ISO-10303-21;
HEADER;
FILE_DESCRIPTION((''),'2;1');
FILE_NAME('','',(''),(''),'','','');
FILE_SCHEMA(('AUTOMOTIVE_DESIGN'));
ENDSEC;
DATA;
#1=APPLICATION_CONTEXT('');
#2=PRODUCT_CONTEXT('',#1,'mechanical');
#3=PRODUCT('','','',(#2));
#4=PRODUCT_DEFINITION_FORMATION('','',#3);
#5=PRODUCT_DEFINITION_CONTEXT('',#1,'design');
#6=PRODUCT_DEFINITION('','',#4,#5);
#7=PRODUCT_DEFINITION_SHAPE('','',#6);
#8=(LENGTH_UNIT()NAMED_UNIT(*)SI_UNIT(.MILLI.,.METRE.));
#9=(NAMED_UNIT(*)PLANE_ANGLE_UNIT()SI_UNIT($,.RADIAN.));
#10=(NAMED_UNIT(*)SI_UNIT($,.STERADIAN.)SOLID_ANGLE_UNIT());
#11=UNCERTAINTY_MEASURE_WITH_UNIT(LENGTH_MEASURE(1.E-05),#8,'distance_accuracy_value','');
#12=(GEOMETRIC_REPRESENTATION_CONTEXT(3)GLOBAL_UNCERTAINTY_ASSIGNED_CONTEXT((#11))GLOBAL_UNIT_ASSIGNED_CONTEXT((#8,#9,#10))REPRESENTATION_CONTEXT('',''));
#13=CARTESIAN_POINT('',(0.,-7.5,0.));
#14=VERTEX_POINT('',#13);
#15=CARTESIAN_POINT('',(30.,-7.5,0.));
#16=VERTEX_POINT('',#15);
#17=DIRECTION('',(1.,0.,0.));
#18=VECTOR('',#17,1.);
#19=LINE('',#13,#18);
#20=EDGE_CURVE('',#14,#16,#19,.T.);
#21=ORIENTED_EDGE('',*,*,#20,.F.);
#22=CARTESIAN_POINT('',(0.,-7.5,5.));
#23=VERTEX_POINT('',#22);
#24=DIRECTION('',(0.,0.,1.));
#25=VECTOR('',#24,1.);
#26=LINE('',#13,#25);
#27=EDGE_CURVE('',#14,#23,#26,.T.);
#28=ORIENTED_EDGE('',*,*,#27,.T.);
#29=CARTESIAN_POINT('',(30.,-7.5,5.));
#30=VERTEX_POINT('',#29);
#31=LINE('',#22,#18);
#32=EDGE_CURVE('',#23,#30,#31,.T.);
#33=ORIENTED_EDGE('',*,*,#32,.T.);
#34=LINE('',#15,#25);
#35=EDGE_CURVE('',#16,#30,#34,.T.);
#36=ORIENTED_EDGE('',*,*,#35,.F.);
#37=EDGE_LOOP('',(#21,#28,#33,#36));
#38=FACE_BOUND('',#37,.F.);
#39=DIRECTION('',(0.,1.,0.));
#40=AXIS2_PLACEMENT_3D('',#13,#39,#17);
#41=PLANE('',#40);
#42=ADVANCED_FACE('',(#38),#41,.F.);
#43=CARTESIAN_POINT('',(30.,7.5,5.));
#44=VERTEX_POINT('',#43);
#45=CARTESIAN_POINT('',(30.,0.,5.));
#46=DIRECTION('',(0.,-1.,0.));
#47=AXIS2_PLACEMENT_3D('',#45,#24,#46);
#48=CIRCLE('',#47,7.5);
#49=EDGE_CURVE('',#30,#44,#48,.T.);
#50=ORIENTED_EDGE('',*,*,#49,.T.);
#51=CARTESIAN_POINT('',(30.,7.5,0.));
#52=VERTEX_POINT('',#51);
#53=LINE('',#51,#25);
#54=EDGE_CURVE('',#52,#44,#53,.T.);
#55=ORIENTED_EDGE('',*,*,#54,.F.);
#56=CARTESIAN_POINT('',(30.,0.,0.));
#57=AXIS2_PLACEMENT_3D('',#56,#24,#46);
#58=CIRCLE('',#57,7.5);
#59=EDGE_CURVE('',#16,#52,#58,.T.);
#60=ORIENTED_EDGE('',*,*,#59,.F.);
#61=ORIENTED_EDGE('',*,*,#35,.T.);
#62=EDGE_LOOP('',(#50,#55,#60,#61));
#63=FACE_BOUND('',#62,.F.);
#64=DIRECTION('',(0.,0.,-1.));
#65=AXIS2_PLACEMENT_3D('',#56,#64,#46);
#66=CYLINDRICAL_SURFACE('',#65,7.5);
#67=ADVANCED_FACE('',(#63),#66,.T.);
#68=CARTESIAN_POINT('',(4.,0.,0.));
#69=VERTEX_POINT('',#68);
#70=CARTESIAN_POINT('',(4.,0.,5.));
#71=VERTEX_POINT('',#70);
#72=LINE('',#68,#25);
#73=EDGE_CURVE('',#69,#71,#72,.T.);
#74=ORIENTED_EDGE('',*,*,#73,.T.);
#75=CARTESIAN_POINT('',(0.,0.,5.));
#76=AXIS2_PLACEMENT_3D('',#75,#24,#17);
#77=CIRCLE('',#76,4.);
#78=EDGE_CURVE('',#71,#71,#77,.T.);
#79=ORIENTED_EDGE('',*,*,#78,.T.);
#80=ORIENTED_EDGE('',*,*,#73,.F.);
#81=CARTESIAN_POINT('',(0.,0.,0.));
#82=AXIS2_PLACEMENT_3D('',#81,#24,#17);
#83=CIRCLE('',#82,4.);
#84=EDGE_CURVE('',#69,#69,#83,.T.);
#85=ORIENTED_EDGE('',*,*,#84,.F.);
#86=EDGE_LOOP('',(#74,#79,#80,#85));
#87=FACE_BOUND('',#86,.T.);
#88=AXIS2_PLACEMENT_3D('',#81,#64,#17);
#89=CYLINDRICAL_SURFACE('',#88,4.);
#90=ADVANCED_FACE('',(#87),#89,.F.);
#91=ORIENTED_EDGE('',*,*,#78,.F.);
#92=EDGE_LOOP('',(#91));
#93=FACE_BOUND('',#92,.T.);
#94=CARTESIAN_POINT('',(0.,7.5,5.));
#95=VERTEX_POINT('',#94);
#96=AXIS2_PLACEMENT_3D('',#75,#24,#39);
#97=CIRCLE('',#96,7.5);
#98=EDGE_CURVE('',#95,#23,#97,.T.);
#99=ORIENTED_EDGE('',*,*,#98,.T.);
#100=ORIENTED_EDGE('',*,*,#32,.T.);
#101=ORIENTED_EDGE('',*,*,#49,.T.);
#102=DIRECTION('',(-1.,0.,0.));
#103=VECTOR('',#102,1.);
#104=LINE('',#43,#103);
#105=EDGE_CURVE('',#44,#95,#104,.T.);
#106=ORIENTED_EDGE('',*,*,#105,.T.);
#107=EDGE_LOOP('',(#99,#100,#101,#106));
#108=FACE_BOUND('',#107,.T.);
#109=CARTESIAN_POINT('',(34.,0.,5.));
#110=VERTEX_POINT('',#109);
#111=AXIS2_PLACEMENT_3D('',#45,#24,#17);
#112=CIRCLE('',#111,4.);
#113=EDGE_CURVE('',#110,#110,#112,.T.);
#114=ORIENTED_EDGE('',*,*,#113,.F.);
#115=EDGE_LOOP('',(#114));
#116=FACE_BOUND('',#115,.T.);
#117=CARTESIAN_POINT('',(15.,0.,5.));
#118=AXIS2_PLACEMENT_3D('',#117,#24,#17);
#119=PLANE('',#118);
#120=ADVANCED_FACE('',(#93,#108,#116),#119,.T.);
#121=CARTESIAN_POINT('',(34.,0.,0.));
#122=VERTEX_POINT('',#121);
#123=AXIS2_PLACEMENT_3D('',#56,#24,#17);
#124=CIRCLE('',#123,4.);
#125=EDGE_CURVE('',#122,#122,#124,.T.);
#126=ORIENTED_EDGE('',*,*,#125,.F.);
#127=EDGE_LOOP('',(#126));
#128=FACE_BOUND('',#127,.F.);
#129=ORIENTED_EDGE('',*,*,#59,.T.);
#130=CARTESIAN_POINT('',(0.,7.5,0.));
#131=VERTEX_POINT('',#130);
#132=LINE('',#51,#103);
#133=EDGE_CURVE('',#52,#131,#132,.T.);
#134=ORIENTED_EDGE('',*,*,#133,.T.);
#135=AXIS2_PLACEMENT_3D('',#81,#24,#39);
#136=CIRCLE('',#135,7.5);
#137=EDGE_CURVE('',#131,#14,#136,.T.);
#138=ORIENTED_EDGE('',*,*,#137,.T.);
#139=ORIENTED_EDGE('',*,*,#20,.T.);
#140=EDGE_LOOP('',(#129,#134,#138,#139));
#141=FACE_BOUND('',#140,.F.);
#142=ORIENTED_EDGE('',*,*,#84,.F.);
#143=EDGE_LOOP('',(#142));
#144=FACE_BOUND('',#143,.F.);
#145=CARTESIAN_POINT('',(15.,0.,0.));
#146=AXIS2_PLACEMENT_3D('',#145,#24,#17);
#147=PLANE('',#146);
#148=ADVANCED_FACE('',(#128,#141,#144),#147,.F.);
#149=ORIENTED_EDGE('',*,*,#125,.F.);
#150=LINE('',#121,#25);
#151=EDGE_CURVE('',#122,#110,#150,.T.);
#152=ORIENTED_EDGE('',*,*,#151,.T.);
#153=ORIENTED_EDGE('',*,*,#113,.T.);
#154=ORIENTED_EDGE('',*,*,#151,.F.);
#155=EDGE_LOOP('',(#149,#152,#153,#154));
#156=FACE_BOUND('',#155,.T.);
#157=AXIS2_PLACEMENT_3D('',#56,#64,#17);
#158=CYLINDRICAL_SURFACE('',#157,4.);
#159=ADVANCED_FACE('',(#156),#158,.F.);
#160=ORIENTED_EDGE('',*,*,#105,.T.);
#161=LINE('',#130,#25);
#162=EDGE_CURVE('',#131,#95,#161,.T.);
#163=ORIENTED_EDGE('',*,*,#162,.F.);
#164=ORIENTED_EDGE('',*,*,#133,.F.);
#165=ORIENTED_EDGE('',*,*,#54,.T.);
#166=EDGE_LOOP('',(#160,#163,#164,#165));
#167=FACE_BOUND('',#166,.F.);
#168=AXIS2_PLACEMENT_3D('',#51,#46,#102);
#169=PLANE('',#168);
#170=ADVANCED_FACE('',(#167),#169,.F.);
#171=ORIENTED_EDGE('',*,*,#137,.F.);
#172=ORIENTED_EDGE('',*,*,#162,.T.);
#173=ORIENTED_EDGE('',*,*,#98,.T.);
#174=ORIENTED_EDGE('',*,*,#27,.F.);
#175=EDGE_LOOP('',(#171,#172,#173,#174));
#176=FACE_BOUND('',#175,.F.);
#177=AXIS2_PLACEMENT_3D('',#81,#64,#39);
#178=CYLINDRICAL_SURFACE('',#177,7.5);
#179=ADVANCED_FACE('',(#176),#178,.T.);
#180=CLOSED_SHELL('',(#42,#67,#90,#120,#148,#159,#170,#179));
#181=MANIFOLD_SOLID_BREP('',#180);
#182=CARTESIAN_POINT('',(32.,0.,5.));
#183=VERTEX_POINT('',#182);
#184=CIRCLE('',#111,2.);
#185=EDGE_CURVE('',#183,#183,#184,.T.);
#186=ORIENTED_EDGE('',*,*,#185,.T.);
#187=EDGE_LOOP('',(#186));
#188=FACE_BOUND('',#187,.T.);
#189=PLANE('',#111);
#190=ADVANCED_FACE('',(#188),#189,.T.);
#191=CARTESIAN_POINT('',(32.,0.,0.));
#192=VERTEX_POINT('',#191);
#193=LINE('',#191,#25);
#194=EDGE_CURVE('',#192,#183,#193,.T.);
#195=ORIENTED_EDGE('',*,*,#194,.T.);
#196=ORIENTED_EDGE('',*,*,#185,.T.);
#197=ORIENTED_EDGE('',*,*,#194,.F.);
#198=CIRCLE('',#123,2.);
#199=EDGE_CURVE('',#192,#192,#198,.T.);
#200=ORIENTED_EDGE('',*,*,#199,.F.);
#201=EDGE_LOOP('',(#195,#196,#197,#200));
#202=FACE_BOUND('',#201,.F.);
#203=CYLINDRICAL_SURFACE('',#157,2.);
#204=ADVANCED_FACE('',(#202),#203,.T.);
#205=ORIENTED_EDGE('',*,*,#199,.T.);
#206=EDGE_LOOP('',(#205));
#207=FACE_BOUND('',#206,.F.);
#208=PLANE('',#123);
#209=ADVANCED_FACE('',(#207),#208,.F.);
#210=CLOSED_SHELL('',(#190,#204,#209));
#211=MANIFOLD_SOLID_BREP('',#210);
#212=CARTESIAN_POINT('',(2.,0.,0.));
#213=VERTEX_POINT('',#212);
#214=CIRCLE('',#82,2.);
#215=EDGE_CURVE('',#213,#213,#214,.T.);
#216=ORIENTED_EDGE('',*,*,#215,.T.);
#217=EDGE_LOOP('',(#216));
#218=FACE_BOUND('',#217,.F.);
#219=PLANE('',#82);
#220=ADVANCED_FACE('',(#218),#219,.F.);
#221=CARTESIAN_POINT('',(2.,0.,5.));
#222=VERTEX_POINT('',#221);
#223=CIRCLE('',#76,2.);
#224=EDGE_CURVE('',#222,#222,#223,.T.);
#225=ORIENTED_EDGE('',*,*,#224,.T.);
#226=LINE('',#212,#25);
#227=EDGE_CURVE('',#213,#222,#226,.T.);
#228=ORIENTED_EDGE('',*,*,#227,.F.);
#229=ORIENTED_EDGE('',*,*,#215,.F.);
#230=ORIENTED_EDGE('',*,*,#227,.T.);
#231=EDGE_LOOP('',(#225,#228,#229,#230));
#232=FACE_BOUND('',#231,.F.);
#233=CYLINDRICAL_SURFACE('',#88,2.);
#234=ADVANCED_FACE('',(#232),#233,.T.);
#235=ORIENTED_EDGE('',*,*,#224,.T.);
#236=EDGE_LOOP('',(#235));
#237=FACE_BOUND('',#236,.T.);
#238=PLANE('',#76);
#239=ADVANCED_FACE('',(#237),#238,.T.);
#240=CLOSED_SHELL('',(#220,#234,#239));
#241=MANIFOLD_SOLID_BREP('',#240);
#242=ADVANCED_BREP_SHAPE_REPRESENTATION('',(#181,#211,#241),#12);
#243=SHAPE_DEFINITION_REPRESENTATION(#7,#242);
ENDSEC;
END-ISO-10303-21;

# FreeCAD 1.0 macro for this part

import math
import FreeCAD as App
import Part
import Sketcher
from FreeCAD import Vector

doc = App.newDocument("Part")
body = doc.addObject("PartDesign::Body", "Body")

# Sketch on XY plane
sketch1 = doc.addObject("Sketcher::SketchObject", "Sketch")
body.addObject(sketch1)
sketch1.AttachmentSupport = (doc.XY_Plane, [""])
sketch1.MapMode = "FlatFace"
sketch1.addGeometry(Part.LineSegment(Vector(30, 7.5, 0), Vector(0, 7.5, 0)), False)
sketch1.addGeometry(Part.ArcOfCircle(Part.Circle(Vector(0, 0, 0), Vector(0, 0, 1), 7.5), math.radians(90), math.radians(270)), False)
sketch1.addGeometry(Part.LineSegment(Vector(0, -7.5, 0), Vector(30, -7.5, 0)), False)
sketch1.addGeometry(Part.ArcOfCircle(Part.Circle(Vector(30, 0, 0), Vector(0, 0, 1), 7.5), math.radians(-90), math.radians(90)), False)
sketch1.addGeometry(Part.Circle(Vector(0, 0, 0), Vector(0, 0, 1), 4), False)
sketch1.addGeometry(Part.Circle(Vector(30, 0, 0), Vector(0, 0, 1), 4), False)
sketch1.addConstraint(Sketcher.Constraint("Tangent", 0, 2, 1, 1))
sketch1.addConstraint(Sketcher.Constraint("Tangent", 1, 2, 2, 1))
sketch1.addConstraint(Sketcher.Constraint("Tangent", 2, 2, 3, 1))
sketch1.addConstraint(Sketcher.Constraint("Tangent", 3, 2, 0, 1))
sketch1.addConstraint(Sketcher.Constraint("Horizontal", 0))
sketch1.addConstraint(Sketcher.Constraint("Horizontal", 2))
sketch1.addConstraint(Sketcher.Constraint("Coincident", 1, 3, -1, 1))
sketch1.addConstraint(Sketcher.Constraint("Coincident", 4, 3, -1, 1))
sketch1.addConstraint(Sketcher.Constraint("Coincident", 5, 3, 3, 3))
sketch1.addConstraint(Sketcher.Constraint("Equal", 4, 5))
sketch1.addConstraint(Sketcher.Constraint("Diameter", 4, 8.0))
sketch1.addConstraint(Sketcher.Constraint("Radius", 1, 7.5))
sketch1.addConstraint(Sketcher.Constraint("DistanceX", 0, 2, 0, 1, 30.0))
pad1 = doc.addObject("PartDesign::Pad", "Pad")
body.addObject(pad1)
pad1.Profile = sketch1
pad1.Length = 5
body2 = doc.addObject("PartDesign::Body", "Body001")
body2.AllowCompound = True

# Sketch on XY plane
sketch2 = doc.addObject("Sketcher::SketchObject", "Sketch001")
body2.addObject(sketch2)
sketch2.AttachmentSupport = (doc.getObject("XY_Plane001"), [""])
sketch2.MapMode = "FlatFace"
sketch2.addGeometry(Part.Circle(Vector(0, 0, 0), Vector(0, 0, 1), 2), False)
sketch2.addGeometry(Part.Circle(Vector(30, 0, 0), Vector(0, 0, 1), 2), False)
sketch2.addConstraint(Sketcher.Constraint("Coincident", 0, 3, -1, 1))
sketch2.addConstraint(Sketcher.Constraint("Equal", 0, 1))
sketch2.addConstraint(Sketcher.Constraint("PointOnObject", 1, 3, -1))
sketch2.addConstraint(Sketcher.Constraint("Diameter", 0, 4.0))
sketch2.addConstraint(Sketcher.Constraint("DistanceX", -1, 1, 1, 3, 30.0))
pad2 = doc.addObject("PartDesign::Pad", "Pad001")
body2.addObject(pad2)
pad2.Profile = sketch2
pad2.Length = 5

doc.recompute()
